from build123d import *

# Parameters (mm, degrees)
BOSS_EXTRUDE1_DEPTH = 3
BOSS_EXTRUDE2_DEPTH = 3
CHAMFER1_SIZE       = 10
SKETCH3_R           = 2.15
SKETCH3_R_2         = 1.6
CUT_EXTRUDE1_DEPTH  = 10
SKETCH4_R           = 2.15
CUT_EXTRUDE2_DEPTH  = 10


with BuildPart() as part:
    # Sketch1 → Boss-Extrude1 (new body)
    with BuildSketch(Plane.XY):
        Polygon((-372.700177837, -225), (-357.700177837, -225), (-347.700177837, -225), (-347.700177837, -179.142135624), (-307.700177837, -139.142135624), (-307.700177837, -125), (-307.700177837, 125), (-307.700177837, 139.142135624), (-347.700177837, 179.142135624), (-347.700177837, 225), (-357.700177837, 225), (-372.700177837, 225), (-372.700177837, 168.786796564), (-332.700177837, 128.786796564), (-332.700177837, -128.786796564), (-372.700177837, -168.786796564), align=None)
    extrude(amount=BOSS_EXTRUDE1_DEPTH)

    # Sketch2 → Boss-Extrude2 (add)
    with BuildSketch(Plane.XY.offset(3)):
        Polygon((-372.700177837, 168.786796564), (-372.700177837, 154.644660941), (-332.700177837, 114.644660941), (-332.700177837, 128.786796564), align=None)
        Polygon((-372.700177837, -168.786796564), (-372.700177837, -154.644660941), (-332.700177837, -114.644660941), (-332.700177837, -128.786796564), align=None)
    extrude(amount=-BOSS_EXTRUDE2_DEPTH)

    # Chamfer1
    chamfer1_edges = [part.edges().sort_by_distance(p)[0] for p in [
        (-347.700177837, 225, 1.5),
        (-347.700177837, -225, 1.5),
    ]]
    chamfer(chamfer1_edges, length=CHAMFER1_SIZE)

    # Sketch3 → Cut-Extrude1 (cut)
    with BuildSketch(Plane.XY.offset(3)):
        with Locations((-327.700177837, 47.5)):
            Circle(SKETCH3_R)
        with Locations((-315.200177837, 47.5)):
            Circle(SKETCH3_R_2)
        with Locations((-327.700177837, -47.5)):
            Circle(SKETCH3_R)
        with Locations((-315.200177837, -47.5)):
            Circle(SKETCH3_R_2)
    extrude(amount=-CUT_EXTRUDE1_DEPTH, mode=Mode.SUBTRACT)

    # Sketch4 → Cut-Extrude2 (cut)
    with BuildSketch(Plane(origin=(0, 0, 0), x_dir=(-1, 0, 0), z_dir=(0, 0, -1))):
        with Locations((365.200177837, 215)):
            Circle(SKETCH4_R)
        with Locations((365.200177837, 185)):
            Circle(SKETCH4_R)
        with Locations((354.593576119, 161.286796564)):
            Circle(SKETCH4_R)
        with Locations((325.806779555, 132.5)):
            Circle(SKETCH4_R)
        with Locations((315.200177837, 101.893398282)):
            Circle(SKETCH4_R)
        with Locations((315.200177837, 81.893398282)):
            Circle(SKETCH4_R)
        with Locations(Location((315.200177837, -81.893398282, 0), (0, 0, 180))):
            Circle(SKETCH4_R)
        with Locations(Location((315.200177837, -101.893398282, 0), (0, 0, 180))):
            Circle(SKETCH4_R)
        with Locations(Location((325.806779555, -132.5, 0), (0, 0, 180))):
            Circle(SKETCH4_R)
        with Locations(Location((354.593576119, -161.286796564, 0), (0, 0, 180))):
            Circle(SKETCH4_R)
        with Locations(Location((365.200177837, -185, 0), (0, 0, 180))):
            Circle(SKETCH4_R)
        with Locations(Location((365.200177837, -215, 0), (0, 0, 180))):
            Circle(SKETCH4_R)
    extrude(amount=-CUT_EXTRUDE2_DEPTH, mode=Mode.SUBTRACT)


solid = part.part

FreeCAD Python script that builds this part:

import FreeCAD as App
import Part
import Sketcher
from FreeCAD import Vector
Q = App.Units.Quantity


def edges_at(feature, points):
    """Names of the edges that pass closest to the given points."""
    edges = feature.Shape.Edges
    near = lambda p: min(range(len(edges)), key=lambda i: edges[i].distToShape(Part.Vertex(*p))[0])
    return sorted({f"Edge{near(p) + 1}" for p in points})

doc = App.newDocument("Part")
body = doc.addObject("PartDesign::Body", "Body")

sketch1 = body.newObject("Sketcher::SketchObject", "Sketch")
sketch1.AttachmentSupport = (doc.getObject("XY_Plane"), [""])
sketch1.MapMode = "FlatFace"
sketch1.addGeometry([
    Part.LineSegment(Vector(-373, -225, 0), Vector(-348, -225, 0)),
    Part.LineSegment(Vector(-348, -225, 0), Vector(-348, -179, 0)),
    Part.LineSegment(Vector(-348, -179, 0), Vector(-308, -139, 0)),
    Part.LineSegment(Vector(-308, -139, 0), Vector(-308, 139, 0)),
    Part.LineSegment(Vector(-308, 139, 0), Vector(-348, 179, 0)),
    Part.LineSegment(Vector(-348, 179, 0), Vector(-348, 225, 0)),
    Part.LineSegment(Vector(-348, 225, 0), Vector(-373, 225, 0)),
    Part.LineSegment(Vector(-373, 225, 0), Vector(-373, 169, 0)),
    Part.LineSegment(Vector(-373, 169, 0), Vector(-333, 129, 0)),
    Part.LineSegment(Vector(-333, 129, 0), Vector(-333, -129, 0)),
    Part.LineSegment(Vector(-333, -129, 0), Vector(-373, -169, 0)),
    Part.LineSegment(Vector(-373, -169, 0), Vector(-373, -225, 0)),
], False)
sketch1.addConstraint([
    Sketcher.Constraint("Coincident", 0, 2, 1, 1),
    Sketcher.Constraint("Coincident", 1, 2, 2, 1),
    Sketcher.Constraint("Coincident", 2, 2, 3, 1),
    Sketcher.Constraint("Coincident", 3, 2, 4, 1),
    Sketcher.Constraint("Coincident", 4, 2, 5, 1),
    Sketcher.Constraint("Coincident", 5, 2, 6, 1),
    Sketcher.Constraint("Coincident", 6, 2, 7, 1),
    Sketcher.Constraint("Coincident", 7, 2, 8, 1),
    Sketcher.Constraint("Coincident", 8, 2, 9, 1),
    Sketcher.Constraint("Coincident", 9, 2, 10, 1),
    Sketcher.Constraint("Coincident", 10, 2, 11, 1),
    Sketcher.Constraint("Coincident", 11, 2, 0, 1),
    Sketcher.Constraint("Horizontal", 0),
    Sketcher.Constraint("Vertical", 1),
    Sketcher.Constraint("Vertical", 3),
    Sketcher.Constraint("Vertical", 5),
    Sketcher.Constraint("Horizontal", 6),
    Sketcher.Constraint("Vertical", 7),
    Sketcher.Constraint("Vertical", 9),
    Sketcher.Constraint("Vertical", 11),
    Sketcher.Constraint("Symmetric", 1, 2, 4, 2, -1),
    Sketcher.Constraint("Symmetric", 7, 2, 10, 2, -1),
    Sketcher.Constraint("Perpendicular", 2, 4),
    Sketcher.Constraint("Parallel", 4, 8),
    Sketcher.Constraint("Perpendicular", 8, 10),
    Sketcher.Constraint("Equal", 1, 5),
    Sketcher.Constraint("Equal", 2, 4),
    Sketcher.Constraint("Equal", 4, 8),
    Sketcher.Constraint("DistanceX", 0, 1, 0, 2, Q("25 mm")),
    Sketcher.Constraint("DistanceY", 0, 2, -1, 1, Q("225 mm")),
    Sketcher.Constraint("DistanceX", 1, 2, 2, 2, Q("40 mm")),
    Sketcher.Constraint("DistanceY", 3, 1, 3, 2, Q("278.284271 mm")),
    Sketcher.Constraint("DistanceY", 7, 2, 7, 1, Q("56.213203 mm")),
    Sketcher.Constraint("DistanceX", 0, 2, -1, 1, Q("347.700178 mm")),
])
pad1 = body.newObject("PartDesign::Pad", "Pad")
pad1.Profile = sketch1
pad1.Length = 3

sketch2 = body.newObject("Sketcher::SketchObject", "Sketch001")
sketch2.AttachmentSupport = (doc.getObject("XY_Plane"), [""])
sketch2.MapMode = "FlatFace"
sketch2.AttachmentOffset = App.Placement(Vector(0, 0, 3), App.Rotation())
sketch2.addGeometry([
    Part.LineSegment(Vector(-373, 169, 0), Vector(-373, 155, 0)),
    Part.LineSegment(Vector(-373, 155, 0), Vector(-333, 115, 0)),
    Part.LineSegment(Vector(-333, 115, 0), Vector(-333, 129, 0)),
    Part.LineSegment(Vector(-333, 129, 0), Vector(-373, 169, 0)),
    Part.LineSegment(Vector(-373, -155, 0), Vector(-373, -169, 0)),
    Part.LineSegment(Vector(-373, -169, 0), Vector(-333, -129, 0)),
    Part.LineSegment(Vector(-333, -129, 0), Vector(-333, -115, 0)),
    Part.LineSegment(Vector(-333, -115, 0), Vector(-373, -155, 0)),
], False)
sketch2.addConstraint([
    Sketcher.Constraint("Coincident", 0, 2, 1, 1),
    Sketcher.Constraint("Coincident", 1, 2, 2, 1),
    Sketcher.Constraint("Coincident", 2, 2, 3, 1),
    Sketcher.Constraint("Coincident", 3, 2, 0, 1),
    Sketcher.Constraint("Coincident", 4, 2, 5, 1),
    Sketcher.Constraint("Coincident", 5, 2, 6, 1),
    Sketcher.Constraint("Coincident", 6, 2, 7, 1),
    Sketcher.Constraint("Coincident", 7, 2, 4, 1),
    Sketcher.Constraint("Vertical", 0),
    Sketcher.Constraint("Vertical", 2),
    Sketcher.Constraint("Vertical", 4),
    Sketcher.Constraint("Vertical", 6),
    Sketcher.Constraint("Symmetric", 3, 2, 4, 2, -1),
    Sketcher.Constraint("Symmetric", 2, 2, 5, 2, -1),
    Sketcher.Constraint("Parallel", 1, 3),
    Sketcher.Constraint("Perpendicular", 3, 5),
    Sketcher.Constraint("Parallel", 5, 7),
    Sketcher.Constraint("Equal", 2, 4),
    Sketcher.Constraint("DistanceX", 0, 2, 1, 2, Q("40 mm")),
    Sketcher.Constraint("DistanceY", 0, 2, 0, 1, Q("14.142136 mm")),
    Sketcher.Constraint("DistanceY", -1, 1, 0, 2, Q("154.644661 mm")),
    Sketcher.Constraint("DistanceX", 0, 2, -1, 1, Q("372.700178 mm")),
])
pad2 = body.newObject("PartDesign::Pad", "Pad001")
pad2.Profile = sketch2
pad2.Length = 3
pad2.Reversed = True
doc.recompute()

chamfer = body.newObject("PartDesign::Chamfer", "Chamfer")
chamfer.Base = (pad2, edges_at(pad2, [(-347.7, 225, 1.5), (-347.7, -225, 1.5)]))
chamfer.Size = 10

sketch3 = body.newObject("Sketcher::SketchObject", "Sketch002")
sketch3.AttachmentSupport = (doc.getObject("XY_Plane"), [""])
sketch3.MapMode = "FlatFace"
sketch3.AttachmentOffset = App.Placement(Vector(0, 0, 3), App.Rotation())
sketch3.addGeometry([
    Part.Circle(Vector(-327.7, 47.5, 0), Vector(0, 0, 1), 2.1),
    Part.Circle(Vector(-315.2, 47.5, 0), Vector(0, 0, 1), 1.6),
    Part.Circle(Vector(-327.7, -47.5, 0), Vector(0, 0, 1), 2.1),
    Part.Circle(Vector(-315.2, -47.5, 0), Vector(0, 0, 1), 1.6),
], False)
sketch3.addConstraint([
    Sketcher.Constraint("Equal", 0, 2),
    Sketcher.Constraint("Equal", 1, 3),
    Sketcher.Constraint("Symmetric", 0, 3, 2, 3, -1),
    Sketcher.Constraint("Symmetric", 1, 3, 3, 3, -1),
    Sketcher.Constraint("Horizontal", 0, 3, 1, 3),
    Sketcher.Constraint("Diameter", 0, Q("4.3 mm")),
    Sketcher.Constraint("Diameter", 1, Q("3.2 mm")),
    Sketcher.Constraint("DistanceY", 2, 3, 0, 3, Q("95 mm")),
    Sketcher.Constraint("DistanceX", 0, 3, 1, 3, Q("12.5 mm")),
    Sketcher.Constraint("DistanceX", 0, 3, -1, 1, Q("327.700178 mm")),
])
pocket1 = body.newObject("PartDesign::Pocket", "Pocket")
pocket1.Profile = sketch3
pocket1.Length = 10

sketch4 = body.newObject("Sketcher::SketchObject", "Sketch003")
sketch4.AttachmentSupport = (doc.getObject("XY_Plane"), [""])
sketch4.MapMode = "FlatFace"
sketch4.addGeometry([
    Part.Circle(Vector(-365.2, 215, 0), Vector(0, 0, 1), 2.1),
    Part.Circle(Vector(-365.2, 185, 0), Vector(0, 0, 1), 2.1),
    Part.Circle(Vector(-354.6, 161.3, 0), Vector(0, 0, 1), 2.1),
    Part.Circle(Vector(-325.8, 132.5, 0), Vector(0, 0, 1), 2.1),
    Part.Circle(Vector(-315.2, 101.9, 0), Vector(0, 0, 1), 2.1),
    Part.Circle(Vector(-315.2, 81.9, 0), Vector(0, 0, 1), 2.1),
    Part.Circle(Vector(-315.2, -81.9, 0), Vector(0, 0, 1), 2.1),
    Part.Circle(Vector(-315.2, -101.9, 0), Vector(0, 0, 1), 2.1),
    Part.Circle(Vector(-325.8, -132.5, 0), Vector(0, 0, 1), 2.1),
    Part.Circle(Vector(-354.6, -161.3, 0), Vector(0, 0, 1), 2.1),
    Part.Circle(Vector(-365.2, -185, 0), Vector(0, 0, 1), 2.1),
    Part.Circle(Vector(-365.2, -215, 0), Vector(0, 0, 1), 2.1),
], False)
sketch4.addConstraint([
    Sketcher.Constraint("Equal", 0, 1),
    Sketcher.Constraint("Equal", 1, 2),
    Sketcher.Constraint("Equal", 2, 3),
    Sketcher.Constraint("Equal", 3, 4),
    Sketcher.Constraint("Equal", 4, 5),
    Sketcher.Constraint("Equal", 5, 6),
    Sketcher.Constraint("Equal", 6, 7),
    Sketcher.Constraint("Equal", 7, 8),
    Sketcher.Constraint("Equal", 8, 9),
    Sketcher.Constraint("Equal", 9, 10),
    Sketcher.Constraint("Equal", 10, 11),
    Sketcher.Constraint("Symmetric", 5, 3, 6, 3, -1),
    Sketcher.Constraint("Symmetric", 4, 3, 7, 3, -1),
    Sketcher.Constraint("Symmetric", 3, 3, 8, 3, -1),
    Sketcher.Constraint("Symmetric", 2, 3, 9, 3, -1),
    Sketcher.Constraint("Symmetric", 1, 3, 10, 3, -1),
    Sketcher.Constraint("Symmetric", 0, 3, 11, 3, -1),
    Sketcher.Constraint("Vertical", 0, 3, 1, 3),
    Sketcher.Constraint("Vertical", 4, 3, 5, 3),
    Sketcher.Constraint("Diameter", 0, Q("4.3 mm")),
    Sketcher.Constraint("DistanceY", -1, 1, 0, 3, Q("215 mm")),
    Sketcher.Constraint("DistanceY", -1, 1, 1, 3, Q("185 mm")),
    Sketcher.Constraint("DistanceX", 1, 3, 4, 3, Q("50 mm")),
    Sketcher.Constraint("DistanceY", 5, 3, 4, 3, Q("20 mm")),
    Sketcher.Constraint("DistanceY", 8, 3, 3, 3, Q("265 mm")),
    Sketcher.Constraint("DistanceY", -1, 1, 4, 3, Q("101.893398 mm")),
    Sketcher.Constraint("DistanceX", 1, 3, 2, 3, Q("10.606602 mm")),
    Sketcher.Constraint("DistanceX", 1, 3, 3, 3, Q("39.393398 mm")),
    Sketcher.Constraint("DistanceY", 4, 3, 2, 3, Q("59.393398 mm")),
    Sketcher.Constraint("DistanceX", 3, 3, -1, 1, Q("325.80678 mm")),
])
pocket2 = body.newObject("PartDesign::Pocket", "Pocket001")
pocket2.Profile = sketch4
pocket2.Length = 10
pocket2.Reversed = True

doc.recompute()
